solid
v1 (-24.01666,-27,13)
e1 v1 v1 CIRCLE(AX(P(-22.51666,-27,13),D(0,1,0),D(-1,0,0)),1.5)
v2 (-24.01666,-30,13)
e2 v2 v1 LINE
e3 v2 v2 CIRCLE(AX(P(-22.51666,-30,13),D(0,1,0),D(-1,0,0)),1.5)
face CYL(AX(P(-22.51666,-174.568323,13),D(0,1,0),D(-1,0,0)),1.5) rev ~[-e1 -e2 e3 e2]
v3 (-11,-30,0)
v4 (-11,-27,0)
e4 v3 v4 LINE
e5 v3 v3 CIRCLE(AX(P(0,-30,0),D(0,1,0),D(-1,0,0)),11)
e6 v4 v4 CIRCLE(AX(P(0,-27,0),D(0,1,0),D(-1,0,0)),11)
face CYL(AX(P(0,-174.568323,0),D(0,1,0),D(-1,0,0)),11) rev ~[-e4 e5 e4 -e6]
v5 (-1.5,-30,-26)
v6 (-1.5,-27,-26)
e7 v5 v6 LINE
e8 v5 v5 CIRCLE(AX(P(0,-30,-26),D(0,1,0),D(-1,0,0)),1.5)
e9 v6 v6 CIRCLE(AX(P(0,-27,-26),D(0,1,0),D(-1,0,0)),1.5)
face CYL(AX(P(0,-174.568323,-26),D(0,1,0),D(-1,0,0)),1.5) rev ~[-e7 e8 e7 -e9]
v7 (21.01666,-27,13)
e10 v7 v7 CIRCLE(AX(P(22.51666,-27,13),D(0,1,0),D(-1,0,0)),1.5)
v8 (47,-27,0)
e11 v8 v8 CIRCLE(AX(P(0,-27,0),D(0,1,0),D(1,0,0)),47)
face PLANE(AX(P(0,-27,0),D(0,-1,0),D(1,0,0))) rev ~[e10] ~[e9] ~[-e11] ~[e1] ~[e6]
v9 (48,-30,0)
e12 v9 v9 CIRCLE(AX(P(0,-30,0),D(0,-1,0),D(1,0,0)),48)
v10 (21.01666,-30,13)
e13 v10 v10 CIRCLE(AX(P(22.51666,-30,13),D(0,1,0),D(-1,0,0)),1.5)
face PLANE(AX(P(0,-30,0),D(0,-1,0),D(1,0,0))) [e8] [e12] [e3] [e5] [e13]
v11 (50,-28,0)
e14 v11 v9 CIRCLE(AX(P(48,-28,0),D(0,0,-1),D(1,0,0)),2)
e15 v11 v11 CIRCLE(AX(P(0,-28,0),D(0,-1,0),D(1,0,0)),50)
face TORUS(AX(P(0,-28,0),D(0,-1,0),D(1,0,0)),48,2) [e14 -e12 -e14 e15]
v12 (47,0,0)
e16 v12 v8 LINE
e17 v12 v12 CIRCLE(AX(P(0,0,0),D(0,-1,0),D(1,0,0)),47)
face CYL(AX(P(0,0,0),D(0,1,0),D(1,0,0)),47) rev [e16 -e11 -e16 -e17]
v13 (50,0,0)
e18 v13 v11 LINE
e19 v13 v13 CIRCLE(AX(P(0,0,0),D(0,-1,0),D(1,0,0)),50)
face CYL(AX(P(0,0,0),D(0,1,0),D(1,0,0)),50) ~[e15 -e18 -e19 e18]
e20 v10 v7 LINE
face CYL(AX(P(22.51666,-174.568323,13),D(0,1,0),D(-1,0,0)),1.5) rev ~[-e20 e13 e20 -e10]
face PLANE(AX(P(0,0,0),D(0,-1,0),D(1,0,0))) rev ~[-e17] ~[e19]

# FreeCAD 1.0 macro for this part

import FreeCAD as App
import Part
import Sketcher
Q = App.Units.Quantity


def edges_at(feature, points):
    """Names of the edges that pass closest to the given points."""
    edges = feature.Shape.Edges
    near = lambda p: min(range(len(edges)), key=lambda i: edges[i].distToShape(Part.Vertex(*p))[0])
    return sorted({f"Edge{near(p) + 1}" for p in points})


def faces_at(feature, points):
    """Names of the faces that lie closest to the given points."""
    faces = feature.Shape.Faces
    near = lambda p: min(range(len(faces)), key=lambda i: faces[i].distToShape(Part.Vertex(*p))[0])
    return sorted({f"Face{near(p) + 1}" for p in points})

doc = App.newDocument("Part")
body = doc.addObject("PartDesign::Body", "Body")

# Sketch on XZ plane
sketch1 = doc.addObject("Sketcher::SketchObject", "Sketch")
body.addObject(sketch1)
sketch1.AttachmentSupport = (doc.XZ_Plane, [""])
sketch1.MapMode = "FlatFace"
sketch1.addGeometry(Part.Circle(App.Vector(0, 0, 0), App.Vector(0, 0, 1), 50), False)
sketch1.addConstraint(Sketcher.Constraint("Coincident", 0, 3, -1, 1))
sketch1.addConstraint(Sketcher.Constraint("Diameter", 0, Q("100 mm")))
pad1 = doc.addObject("PartDesign::Pad", "Pad")
body.addObject(pad1)
pad1.Profile = sketch1
pad1.Length = 30
doc.recompute()

thickness = doc.addObject("PartDesign::Thickness", "Thickness")
body.addObject(thickness)
thickness.Base = (pad1, faces_at(pad1, [(0, 0, 0)]))
thickness.Value = 3
thickness.Reversed = True
thickness.Join = "Arc"
doc.recompute()

fillet = doc.addObject("PartDesign::Fillet", "Fillet")
body.addObject(fillet)
fillet.Base = (thickness, edges_at(thickness, [(-50, -30, 0)]))
fillet.Radius = 2

# Sketch on XZ plane
sketch2 = doc.addObject("Sketcher::SketchObject", "Sketch001")
body.addObject(sketch2)
sketch2.AttachmentSupport = (doc.XZ_Plane, [""])
sketch2.MapMode = "FlatFace"
sketch2.AttachmentOffset = App.Placement(App.Vector(0, 0, 30), App.Rotation())
sketch2.addGeometry(Part.Circle(App.Vector(0, 0, 0), App.Vector(0, 0, 1), 11), False)
sketch2.addConstraint(Sketcher.Constraint("Coincident", 0, 3, -1, 1))
sketch2.addConstraint(Sketcher.Constraint("Diameter", 0, Q("22 mm")))
doc.recompute()
hole = doc.addObject("PartDesign::Hole", "Hole")
body.addObject(hole)
hole.Profile = sketch2
hole.ThreadType = "None"
hole.Diameter = 22
hole.DepthType = "ThroughAll"

# Sketch on XZ plane
sketch3 = doc.addObject("Sketcher::SketchObject", "Sketch002")
body.addObject(sketch3)
sketch3.AttachmentSupport = (doc.XZ_Plane, [""])
sketch3.MapMode = "FlatFace"
sketch3.AttachmentOffset = App.Placement(App.Vector(0, 0, 30), App.Rotation())
sketch3.addGeometry(Part.Circle(App.Vector(0, -26, 0), App.Vector(0, 0, 1), 1.5), False)
sketch3.addGeometry(Part.Circle(App.Vector(-22.5, 13, 0), App.Vector(0, 0, 1), 1.5), False)
sketch3.addGeometry(Part.Circle(App.Vector(22.5, 13, 0), App.Vector(0, 0, 1), 1.5), False)
sketch3.addConstraint(Sketcher.Constraint("Equal", 0, 1))
sketch3.addConstraint(Sketcher.Constraint("Equal", 1, 2))
sketch3.addConstraint(Sketcher.Constraint("Symmetric", 1, 3, 2, 3, -2))
sketch3.addConstraint(Sketcher.Constraint("PointOnObject", 0, 3, -2))
sketch3.addConstraint(Sketcher.Constraint("Diameter", 0, Q("3 mm")))
sketch3.addConstraint(Sketcher.Constraint("DistanceY", 0, 3, -1, 1, Q("26 mm")))
sketch3.addConstraint(Sketcher.Constraint("DistanceY", -1, 1, 1, 3, Q("13 mm")))
sketch3.addConstraint(Sketcher.Constraint("DistanceX", 1, 3, -1, 1, Q("22.51666 mm")))
doc.recompute()
hole2 = doc.addObject("PartDesign::Hole", "Hole001")
body.addObject(hole2)
hole2.Profile = sketch3
hole2.ThreadType = "None"
hole2.Diameter = 3
hole2.DepthType = "ThroughAll"

doc.recompute()
